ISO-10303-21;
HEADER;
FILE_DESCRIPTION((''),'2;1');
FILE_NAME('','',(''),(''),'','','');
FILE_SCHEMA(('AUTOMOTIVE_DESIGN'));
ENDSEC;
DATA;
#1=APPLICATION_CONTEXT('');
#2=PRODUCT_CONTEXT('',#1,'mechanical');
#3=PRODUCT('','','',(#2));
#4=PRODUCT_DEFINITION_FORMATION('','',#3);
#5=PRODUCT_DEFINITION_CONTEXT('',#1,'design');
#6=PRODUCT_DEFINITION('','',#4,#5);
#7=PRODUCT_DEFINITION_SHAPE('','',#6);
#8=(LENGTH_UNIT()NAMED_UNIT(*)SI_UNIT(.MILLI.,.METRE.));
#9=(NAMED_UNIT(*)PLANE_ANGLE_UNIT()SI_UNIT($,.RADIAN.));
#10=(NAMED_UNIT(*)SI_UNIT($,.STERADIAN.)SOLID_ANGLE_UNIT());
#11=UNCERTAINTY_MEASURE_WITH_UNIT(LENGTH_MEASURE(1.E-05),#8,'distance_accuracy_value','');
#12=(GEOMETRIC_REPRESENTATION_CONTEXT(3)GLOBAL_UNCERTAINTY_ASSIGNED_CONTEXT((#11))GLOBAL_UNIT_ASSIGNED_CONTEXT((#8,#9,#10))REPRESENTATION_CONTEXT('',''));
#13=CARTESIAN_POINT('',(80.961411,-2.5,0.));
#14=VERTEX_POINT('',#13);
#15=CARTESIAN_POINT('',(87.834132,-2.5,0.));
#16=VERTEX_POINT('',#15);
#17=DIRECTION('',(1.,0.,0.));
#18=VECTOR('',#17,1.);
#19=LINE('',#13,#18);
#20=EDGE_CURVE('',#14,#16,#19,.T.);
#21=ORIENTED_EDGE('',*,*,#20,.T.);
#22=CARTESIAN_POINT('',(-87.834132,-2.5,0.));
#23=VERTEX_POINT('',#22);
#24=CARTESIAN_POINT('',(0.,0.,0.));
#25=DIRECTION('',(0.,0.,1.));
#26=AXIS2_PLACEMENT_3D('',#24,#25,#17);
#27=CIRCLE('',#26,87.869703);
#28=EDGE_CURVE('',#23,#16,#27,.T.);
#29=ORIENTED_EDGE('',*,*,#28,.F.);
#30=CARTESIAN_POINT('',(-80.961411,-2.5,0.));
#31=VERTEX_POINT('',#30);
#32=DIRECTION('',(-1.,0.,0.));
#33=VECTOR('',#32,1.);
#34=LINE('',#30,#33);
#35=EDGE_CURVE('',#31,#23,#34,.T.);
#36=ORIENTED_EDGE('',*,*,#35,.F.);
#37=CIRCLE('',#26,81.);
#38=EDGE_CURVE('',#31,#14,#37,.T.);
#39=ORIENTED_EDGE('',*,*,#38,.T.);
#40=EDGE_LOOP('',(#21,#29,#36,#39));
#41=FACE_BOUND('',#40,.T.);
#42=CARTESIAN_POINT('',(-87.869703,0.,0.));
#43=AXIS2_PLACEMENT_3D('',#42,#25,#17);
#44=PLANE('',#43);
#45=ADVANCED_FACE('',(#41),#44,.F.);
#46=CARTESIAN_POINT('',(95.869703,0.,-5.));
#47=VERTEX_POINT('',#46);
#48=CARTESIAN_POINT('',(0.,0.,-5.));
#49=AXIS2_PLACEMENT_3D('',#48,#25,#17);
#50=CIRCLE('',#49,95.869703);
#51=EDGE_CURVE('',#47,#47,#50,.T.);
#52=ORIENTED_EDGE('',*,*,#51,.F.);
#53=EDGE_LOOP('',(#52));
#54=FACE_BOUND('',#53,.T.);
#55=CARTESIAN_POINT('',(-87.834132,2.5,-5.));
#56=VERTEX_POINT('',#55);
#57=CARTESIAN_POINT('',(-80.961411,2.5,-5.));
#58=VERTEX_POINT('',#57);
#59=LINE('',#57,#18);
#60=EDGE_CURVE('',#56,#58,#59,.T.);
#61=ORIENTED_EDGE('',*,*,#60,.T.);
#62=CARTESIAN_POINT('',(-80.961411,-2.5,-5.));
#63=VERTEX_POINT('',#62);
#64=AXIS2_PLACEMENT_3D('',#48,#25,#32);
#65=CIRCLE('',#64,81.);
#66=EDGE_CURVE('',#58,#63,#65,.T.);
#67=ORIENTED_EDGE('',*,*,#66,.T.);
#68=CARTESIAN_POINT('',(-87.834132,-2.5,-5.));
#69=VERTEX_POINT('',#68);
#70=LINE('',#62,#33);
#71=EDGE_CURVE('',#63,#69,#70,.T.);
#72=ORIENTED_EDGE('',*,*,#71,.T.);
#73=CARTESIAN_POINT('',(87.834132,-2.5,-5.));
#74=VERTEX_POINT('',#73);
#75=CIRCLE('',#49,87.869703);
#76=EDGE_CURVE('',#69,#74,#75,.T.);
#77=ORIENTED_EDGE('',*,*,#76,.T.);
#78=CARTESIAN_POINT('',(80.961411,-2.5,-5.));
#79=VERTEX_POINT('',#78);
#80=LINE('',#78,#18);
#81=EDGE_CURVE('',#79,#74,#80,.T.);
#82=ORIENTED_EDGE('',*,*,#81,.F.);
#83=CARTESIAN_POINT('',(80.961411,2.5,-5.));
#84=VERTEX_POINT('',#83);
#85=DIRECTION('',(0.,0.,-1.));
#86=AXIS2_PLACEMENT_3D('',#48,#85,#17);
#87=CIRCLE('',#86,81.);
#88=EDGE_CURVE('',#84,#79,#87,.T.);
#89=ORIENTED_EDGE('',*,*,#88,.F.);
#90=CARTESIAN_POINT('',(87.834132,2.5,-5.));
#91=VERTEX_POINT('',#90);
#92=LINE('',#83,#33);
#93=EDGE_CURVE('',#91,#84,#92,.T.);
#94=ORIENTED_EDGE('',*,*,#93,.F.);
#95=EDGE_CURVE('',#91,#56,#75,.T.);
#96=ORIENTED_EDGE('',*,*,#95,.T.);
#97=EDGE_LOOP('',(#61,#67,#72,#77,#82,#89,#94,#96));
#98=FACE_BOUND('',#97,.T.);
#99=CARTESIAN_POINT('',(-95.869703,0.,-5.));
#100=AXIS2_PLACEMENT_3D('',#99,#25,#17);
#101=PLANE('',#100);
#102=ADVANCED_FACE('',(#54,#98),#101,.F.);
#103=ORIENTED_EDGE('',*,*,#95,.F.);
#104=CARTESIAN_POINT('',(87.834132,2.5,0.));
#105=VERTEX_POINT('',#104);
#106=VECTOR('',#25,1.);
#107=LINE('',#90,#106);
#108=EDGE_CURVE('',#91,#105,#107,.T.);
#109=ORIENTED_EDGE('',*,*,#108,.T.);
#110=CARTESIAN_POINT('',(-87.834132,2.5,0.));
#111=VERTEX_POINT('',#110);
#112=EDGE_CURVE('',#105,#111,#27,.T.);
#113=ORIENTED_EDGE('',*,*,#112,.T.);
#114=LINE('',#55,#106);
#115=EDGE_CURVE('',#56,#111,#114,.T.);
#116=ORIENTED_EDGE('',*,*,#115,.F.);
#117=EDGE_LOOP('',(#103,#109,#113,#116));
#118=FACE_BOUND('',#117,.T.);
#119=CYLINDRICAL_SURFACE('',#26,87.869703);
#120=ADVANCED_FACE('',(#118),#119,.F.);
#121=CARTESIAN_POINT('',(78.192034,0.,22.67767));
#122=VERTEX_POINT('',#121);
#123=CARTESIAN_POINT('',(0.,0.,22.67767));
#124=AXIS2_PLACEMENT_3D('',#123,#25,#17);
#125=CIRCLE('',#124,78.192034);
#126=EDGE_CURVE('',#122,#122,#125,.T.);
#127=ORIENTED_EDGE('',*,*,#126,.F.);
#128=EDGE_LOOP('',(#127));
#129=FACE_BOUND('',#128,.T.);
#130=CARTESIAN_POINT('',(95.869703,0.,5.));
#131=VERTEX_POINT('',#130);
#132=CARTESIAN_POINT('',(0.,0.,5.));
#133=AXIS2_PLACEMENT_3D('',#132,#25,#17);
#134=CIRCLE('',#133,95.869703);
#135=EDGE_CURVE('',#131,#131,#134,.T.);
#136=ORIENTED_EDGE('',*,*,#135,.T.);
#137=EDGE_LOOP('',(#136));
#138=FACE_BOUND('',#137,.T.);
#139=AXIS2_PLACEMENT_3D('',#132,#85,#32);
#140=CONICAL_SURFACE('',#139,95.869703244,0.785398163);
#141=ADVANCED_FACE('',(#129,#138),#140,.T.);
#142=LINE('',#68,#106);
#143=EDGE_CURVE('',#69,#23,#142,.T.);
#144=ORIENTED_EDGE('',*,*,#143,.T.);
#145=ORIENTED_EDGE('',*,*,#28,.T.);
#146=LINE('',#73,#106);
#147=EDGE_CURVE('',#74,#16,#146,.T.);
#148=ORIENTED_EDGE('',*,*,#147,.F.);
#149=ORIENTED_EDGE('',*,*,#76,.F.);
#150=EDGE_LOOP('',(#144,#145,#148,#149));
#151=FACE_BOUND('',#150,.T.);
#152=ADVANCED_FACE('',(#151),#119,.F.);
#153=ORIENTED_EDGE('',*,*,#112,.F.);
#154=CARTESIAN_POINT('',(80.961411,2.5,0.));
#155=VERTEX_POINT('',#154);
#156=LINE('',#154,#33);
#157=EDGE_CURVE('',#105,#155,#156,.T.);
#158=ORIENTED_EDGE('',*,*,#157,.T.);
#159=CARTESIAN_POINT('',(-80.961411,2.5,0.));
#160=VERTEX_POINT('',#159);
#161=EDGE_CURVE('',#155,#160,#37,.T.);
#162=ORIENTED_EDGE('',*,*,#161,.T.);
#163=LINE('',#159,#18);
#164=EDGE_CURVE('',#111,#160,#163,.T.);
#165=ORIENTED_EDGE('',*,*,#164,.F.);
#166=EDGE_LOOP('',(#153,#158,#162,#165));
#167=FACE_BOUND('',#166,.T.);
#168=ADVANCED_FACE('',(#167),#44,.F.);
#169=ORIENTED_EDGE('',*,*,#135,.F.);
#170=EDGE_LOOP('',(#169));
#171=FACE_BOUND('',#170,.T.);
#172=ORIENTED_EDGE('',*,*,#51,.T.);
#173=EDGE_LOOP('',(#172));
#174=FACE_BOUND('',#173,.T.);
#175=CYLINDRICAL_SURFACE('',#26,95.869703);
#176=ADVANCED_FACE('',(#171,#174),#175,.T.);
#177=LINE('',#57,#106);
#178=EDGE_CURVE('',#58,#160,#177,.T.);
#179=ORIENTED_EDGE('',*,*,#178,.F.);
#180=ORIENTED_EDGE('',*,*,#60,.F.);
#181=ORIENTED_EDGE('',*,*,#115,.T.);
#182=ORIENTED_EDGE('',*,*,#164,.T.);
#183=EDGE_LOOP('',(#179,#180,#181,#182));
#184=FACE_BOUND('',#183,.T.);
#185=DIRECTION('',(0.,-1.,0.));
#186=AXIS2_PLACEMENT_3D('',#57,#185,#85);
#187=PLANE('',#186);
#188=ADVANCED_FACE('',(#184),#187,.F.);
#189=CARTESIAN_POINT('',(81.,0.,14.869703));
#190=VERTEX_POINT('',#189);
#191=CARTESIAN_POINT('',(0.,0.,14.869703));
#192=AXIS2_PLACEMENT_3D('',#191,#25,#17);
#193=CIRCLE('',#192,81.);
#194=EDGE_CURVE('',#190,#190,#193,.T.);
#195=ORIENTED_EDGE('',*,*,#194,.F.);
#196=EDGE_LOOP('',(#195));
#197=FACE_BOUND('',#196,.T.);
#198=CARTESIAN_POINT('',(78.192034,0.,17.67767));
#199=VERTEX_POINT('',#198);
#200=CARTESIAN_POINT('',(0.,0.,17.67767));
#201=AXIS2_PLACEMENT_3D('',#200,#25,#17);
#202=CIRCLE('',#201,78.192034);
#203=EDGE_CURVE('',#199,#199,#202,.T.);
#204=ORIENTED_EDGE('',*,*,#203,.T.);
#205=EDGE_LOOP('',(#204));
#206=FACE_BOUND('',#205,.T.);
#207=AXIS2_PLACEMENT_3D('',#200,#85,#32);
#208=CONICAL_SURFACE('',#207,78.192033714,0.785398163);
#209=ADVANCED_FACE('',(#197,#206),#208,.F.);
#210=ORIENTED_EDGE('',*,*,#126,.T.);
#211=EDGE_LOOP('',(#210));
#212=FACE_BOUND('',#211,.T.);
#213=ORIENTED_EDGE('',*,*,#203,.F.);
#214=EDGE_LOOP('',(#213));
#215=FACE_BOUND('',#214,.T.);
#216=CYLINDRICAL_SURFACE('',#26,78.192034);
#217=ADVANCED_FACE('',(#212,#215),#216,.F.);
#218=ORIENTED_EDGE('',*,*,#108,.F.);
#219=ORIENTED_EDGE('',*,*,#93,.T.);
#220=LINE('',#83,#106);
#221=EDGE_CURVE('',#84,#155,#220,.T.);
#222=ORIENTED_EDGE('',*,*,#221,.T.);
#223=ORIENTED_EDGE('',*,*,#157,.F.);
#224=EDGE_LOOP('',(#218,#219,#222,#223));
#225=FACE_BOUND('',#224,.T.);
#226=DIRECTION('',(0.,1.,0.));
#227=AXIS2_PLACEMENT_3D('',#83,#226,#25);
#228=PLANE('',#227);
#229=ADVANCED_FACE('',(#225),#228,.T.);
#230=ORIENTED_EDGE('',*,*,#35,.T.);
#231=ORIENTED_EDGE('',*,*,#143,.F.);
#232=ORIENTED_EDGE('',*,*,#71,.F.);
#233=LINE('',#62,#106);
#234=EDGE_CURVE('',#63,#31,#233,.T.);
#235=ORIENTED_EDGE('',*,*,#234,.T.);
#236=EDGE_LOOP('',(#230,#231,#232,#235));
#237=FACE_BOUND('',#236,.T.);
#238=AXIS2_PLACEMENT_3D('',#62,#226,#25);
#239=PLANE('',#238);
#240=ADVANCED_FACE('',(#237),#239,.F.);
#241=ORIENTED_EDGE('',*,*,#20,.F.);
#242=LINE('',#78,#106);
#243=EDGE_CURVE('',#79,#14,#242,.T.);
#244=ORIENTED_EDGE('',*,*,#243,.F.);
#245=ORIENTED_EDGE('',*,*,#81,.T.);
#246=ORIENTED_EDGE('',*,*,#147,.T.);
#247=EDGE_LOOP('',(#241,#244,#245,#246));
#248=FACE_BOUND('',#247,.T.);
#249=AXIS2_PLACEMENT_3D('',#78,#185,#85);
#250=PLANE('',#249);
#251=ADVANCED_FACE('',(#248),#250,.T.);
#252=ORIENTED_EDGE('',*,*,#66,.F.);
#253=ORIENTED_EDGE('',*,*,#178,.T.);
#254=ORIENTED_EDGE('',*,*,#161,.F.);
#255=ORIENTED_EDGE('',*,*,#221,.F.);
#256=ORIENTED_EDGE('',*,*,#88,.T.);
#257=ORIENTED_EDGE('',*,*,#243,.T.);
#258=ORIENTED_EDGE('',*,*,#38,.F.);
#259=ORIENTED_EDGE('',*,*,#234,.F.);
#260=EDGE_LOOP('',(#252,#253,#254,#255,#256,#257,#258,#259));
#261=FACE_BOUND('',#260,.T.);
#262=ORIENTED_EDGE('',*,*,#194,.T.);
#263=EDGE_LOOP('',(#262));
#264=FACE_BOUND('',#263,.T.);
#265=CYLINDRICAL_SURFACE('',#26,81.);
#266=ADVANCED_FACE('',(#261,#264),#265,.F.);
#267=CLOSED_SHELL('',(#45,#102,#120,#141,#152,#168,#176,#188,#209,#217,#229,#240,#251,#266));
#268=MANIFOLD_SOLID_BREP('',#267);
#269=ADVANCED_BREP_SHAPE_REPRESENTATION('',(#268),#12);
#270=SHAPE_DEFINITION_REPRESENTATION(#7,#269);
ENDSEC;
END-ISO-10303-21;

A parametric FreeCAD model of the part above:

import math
import FreeCAD as App
import Part
import Sketcher
from FreeCAD import Vector
Q = App.Units.Quantity

doc = App.newDocument("Part")
body = doc.addObject("PartDesign::Body", "Body")

sketch1 = body.newObject("Sketcher::SketchObject", "Sketch")
sketch1.AttachmentSupport = (doc.getObject("XZ_Plane"), [""])
sketch1.MapMode = "FlatFace"
sketch1.addGeometry([
    Part.LineSegment(Vector(-95.9, -5, 0), Vector(-95.9, 5, 0)),
    Part.LineSegment(Vector(-95.9, 5, 0), Vector(-78.2, 22.7, 0)),
    Part.LineSegment(Vector(-78.2, 22.7, 0), Vector(-78.2, 17.7, 0)),
    Part.LineSegment(Vector(-78.2, 17.7, 0), Vector(-81, 14.9, 0)),
    Part.LineSegment(Vector(-81, 14.9, 0), Vector(-81, 0, 0)),
    Part.LineSegment(Vector(-81, 0, 0), Vector(-87.9, 0, 0)),
    Part.LineSegment(Vector(-87.9, 0, 0), Vector(-87.9, -5, 0)),
    Part.LineSegment(Vector(-87.9, -5, 0), Vector(-95.9, -5, 0)),
], False)
sketch1.addConstraint([
    Sketcher.Constraint("Coincident", 0, 2, 1, 1),
    Sketcher.Constraint("Coincident", 1, 2, 2, 1),
    Sketcher.Constraint("Coincident", 2, 2, 3, 1),
    Sketcher.Constraint("Coincident", 3, 2, 4, 1),
    Sketcher.Constraint("Coincident", 4, 2, 5, 1),
    Sketcher.Constraint("Coincident", 5, 2, 6, 1),
    Sketcher.Constraint("Coincident", 6, 2, 7, 1),
    Sketcher.Constraint("Coincident", 7, 2, 0, 1),
    Sketcher.Constraint("Vertical", 0),
    Sketcher.Constraint("Vertical", 2),
    Sketcher.Constraint("Vertical", 4),
    Sketcher.Constraint("Horizontal", 5),
    Sketcher.Constraint("Vertical", 6),
    Sketcher.Constraint("Horizontal", 7),
    Sketcher.Constraint("PointOnObject", 4, 2, -1),
    Sketcher.Constraint("Parallel", 1, 3),
    Sketcher.Constraint("Equal", 2, 6),
    Sketcher.Constraint("DistanceX", 7, 2, 7, 1, 8.0),
    Sketcher.Constraint("DistanceY", 0, 1, 0, 2, 10.0),
    Sketcher.Constraint("DistanceY", 2, 2, 2, 1, 5.0),
    Sketcher.Constraint("Angle", 1, Q("45 deg")),
    Sketcher.Constraint("Distance", 1, 25.0),
    Sketcher.Constraint("DistanceX", 3, 2, -1, 1, 81.0),
    Sketcher.Constraint("DistanceX", 5, 2, 5, 1, 6.869703),
])
revolution = body.newObject("PartDesign::Revolution", "Revolution")
revolution.Profile = sketch1
revolution.ReferenceAxis = (sketch1, ["V_Axis"])
revolution.Angle = 360

sketch2 = body.newObject("Sketcher::SketchObject", "Sketch001")
sketch2.AttachmentSupport = (doc.getObject("XY_Plane"), [""])
sketch2.MapMode = "FlatFace"
sketch2.AttachmentOffset = App.Placement(Vector(0, 0, -5), App.Rotation())
sketch2.addGeometry([
    Part.LineSegment(Vector(-81, -2, 0), Vector(-88, -2, 0)),
    Part.ArcOfCircle(Part.Circle(Vector(0, 0, 0), Vector(0, 0, 1), 88), math.radians(178.37), math.radians(181.63)),
    Part.LineSegment(Vector(-88, 2, 0), Vector(-81, 2, 0)),
    Part.ArcOfCircle(Part.Circle(Vector(0, 0, 0), Vector(0, 0, 1), 81), math.radians(178.23), math.radians(181.77)),
], False)
sketch2.addConstraint([
    Sketcher.Constraint("Coincident", 0, 2, 1, 2),
    Sketcher.Constraint("Coincident", 1, 1, 2, 1),
    Sketcher.Constraint("Coincident", 2, 2, 3, 1),
    Sketcher.Constraint("Coincident", 3, 2, 0, 1),
    Sketcher.Constraint("Horizontal", 0),
    Sketcher.Constraint("Horizontal", 2),
    Sketcher.Constraint("Coincident", 1, 3, -1, 1),
    Sketcher.Constraint("Coincident", 3, 3, -1, 1),
    Sketcher.Constraint("Vertical", 0, 2, 1, 1),
    Sketcher.Constraint("Radius", 3, 81.0),
    Sketcher.Constraint("DistanceY", 0, 2, 1, 1, 5.0),
    Sketcher.Constraint("Radius", 1, 87.869701),
])
pad1 = body.newObject("PartDesign::Pad", "Pad")
pad1.Profile = sketch2
pad1.Length = 5
doc.recompute()

mirrored = body.newObject("PartDesign::Mirrored", "Mirrored")
mirrored.Originals = [pad1]
mirrored.MirrorPlane = (doc.getObject("YZ_Plane"), [""])
body.Tip = mirrored

doc.recompute()
